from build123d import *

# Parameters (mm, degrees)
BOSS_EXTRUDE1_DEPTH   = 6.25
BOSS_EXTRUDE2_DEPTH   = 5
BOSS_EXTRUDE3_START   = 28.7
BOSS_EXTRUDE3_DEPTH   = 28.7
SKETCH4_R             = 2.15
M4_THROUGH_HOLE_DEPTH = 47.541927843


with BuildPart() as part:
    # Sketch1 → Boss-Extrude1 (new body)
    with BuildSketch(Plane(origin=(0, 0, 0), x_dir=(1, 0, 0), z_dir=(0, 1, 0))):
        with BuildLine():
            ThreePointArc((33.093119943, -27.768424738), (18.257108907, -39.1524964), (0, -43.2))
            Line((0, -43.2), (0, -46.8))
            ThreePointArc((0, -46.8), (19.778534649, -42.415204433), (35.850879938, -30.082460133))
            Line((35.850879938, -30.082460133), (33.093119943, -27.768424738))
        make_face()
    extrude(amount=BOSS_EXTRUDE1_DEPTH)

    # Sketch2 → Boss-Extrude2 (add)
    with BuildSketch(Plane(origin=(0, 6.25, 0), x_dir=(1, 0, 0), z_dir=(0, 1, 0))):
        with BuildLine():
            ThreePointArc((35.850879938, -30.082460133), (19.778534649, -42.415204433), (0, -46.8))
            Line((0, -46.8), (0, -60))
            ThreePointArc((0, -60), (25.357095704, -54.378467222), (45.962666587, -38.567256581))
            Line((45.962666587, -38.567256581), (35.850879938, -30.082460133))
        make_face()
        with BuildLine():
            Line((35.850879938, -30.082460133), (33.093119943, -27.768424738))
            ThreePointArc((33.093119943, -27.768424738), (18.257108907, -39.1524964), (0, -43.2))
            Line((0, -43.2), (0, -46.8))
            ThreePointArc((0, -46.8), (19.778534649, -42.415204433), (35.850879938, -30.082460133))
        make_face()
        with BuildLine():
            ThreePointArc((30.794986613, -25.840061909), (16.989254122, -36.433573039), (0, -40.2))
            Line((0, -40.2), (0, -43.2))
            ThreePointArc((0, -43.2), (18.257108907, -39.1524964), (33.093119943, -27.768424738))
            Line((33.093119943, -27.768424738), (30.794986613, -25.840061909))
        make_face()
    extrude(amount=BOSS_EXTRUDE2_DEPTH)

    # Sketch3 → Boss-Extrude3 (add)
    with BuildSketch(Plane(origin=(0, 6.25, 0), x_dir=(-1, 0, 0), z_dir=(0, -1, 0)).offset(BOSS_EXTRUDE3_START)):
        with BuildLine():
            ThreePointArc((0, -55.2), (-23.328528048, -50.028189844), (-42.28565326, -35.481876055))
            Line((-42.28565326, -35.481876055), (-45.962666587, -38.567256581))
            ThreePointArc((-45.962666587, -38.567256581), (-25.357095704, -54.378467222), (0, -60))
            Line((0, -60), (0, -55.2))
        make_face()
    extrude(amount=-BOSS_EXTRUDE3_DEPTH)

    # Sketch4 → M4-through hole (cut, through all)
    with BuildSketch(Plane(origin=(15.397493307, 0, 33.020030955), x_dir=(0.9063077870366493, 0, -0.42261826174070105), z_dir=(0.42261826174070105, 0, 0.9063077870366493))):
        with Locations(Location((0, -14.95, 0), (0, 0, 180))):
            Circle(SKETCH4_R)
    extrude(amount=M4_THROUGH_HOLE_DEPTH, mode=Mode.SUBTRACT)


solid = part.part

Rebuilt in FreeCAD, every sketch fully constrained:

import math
import FreeCAD as App
import Part
import Sketcher
from FreeCAD import Vector
Q = App.Units.Quantity

doc = App.newDocument("Part")
body = doc.addObject("PartDesign::Body", "Body")

sketch1 = body.newObject("Sketcher::SketchObject", "Sketch")
sketch1.AttachmentSupport = (doc.getObject("XZ_Plane"), [""])
sketch1.MapMode = "FlatFace"
sketch1.addGeometry(Part.ArcOfCircle(Part.Circle(Vector(0, 0, 0), Vector(0, 0, 1), 43.2), math.radians(40), math.radians(90)), False)
sketch1.addGeometry(Part.LineSegment(Vector(0, 43.2, 0), Vector(0, 46.8, 0)), False)
sketch1.addGeometry(Part.ArcOfCircle(Part.Circle(Vector(0, 0, 0), Vector(0, 0, 1), 46.8), math.radians(40), math.radians(90)), False)
sketch1.addGeometry(Part.LineSegment(Vector(35.9, 30.1, 0), Vector(33.1, 27.8, 0)), False)
sketch1.addConstraint(Sketcher.Constraint("Coincident", 0, 2, 1, 1))
sketch1.addConstraint(Sketcher.Constraint("Coincident", 1, 2, 2, 2))
sketch1.addConstraint(Sketcher.Constraint("Coincident", 2, 1, 3, 1))
sketch1.addConstraint(Sketcher.Constraint("Coincident", 3, 2, 0, 1))
sketch1.addConstraint(Sketcher.Constraint("Vertical", 1))
sketch1.addConstraint(Sketcher.Constraint("Coincident", 0, 3, -1, 1))
sketch1.addConstraint(Sketcher.Constraint("Coincident", 2, 3, -1, 1))
sketch1.addConstraint(Sketcher.Constraint("PointOnObject", 0, 2, -2))
sketch1.addConstraint(Sketcher.Constraint("Radius", 0, 43.2))
sketch1.addConstraint(Sketcher.Constraint("Radius", 2, 46.8))
sketch1.addConstraint(Sketcher.Constraint("Angle", 3, Q("-140 deg")))
sketch1.addConstraint(Sketcher.Constraint("DistanceX", -1, 1, 2, 1, 35.85088))
pad1 = body.newObject("PartDesign::Pad", "Pad")
pad1.Profile = sketch1
pad1.Length = 6.25
pad1.Reversed = True

sketch2 = body.newObject("Sketcher::SketchObject", "Sketch001")
sketch2.AttachmentSupport = (doc.getObject("XZ_Plane"), [""])
sketch2.MapMode = "FlatFace"
sketch2.AttachmentOffset = App.Placement(Vector(0, 0, -6.25), App.Rotation())
sketch2.addGeometry(Part.ArcOfCircle(Part.Circle(Vector(0, 0, 0), Vector(0, 0, 1), 60), math.radians(40), math.radians(90)), False)
sketch2.addGeometry(Part.LineSegment(Vector(46, 38.6, 0), Vector(35.9, 30.1, 0)), False)
sketch2.addGeometry(Part.LineSegment(Vector(35.9, 30.1, 0), Vector(33.1, 27.8, 0)), False)
sketch2.addGeometry(Part.LineSegment(Vector(33.1, 27.8, 0), Vector(30.8, 25.8, 0)), False)
sketch2.addGeometry(Part.ArcOfCircle(Part.Circle(Vector(0, 0, 0), Vector(0, 0, 1), 40.2), math.radians(40), math.radians(90)), False)
sketch2.addGeometry(Part.LineSegment(Vector(0, 40.2, 0), Vector(0, 60, 0)), False)
sketch2.addConstraint(Sketcher.Constraint("Coincident", 0, 1, 1, 1))
sketch2.addConstraint(Sketcher.Constraint("Coincident", 1, 2, 2, 1))
sketch2.addConstraint(Sketcher.Constraint("Coincident", 2, 2, 3, 1))
sketch2.addConstraint(Sketcher.Constraint("Coincident", 3, 2, 4, 1))
sketch2.addConstraint(Sketcher.Constraint("Coincident", 4, 2, 5, 1))
sketch2.addConstraint(Sketcher.Constraint("Coincident", 5, 2, 0, 2))
sketch2.addConstraint(Sketcher.Constraint("Vertical", 5))
sketch2.addConstraint(Sketcher.Constraint("Coincident", 0, 3, -1, 1))
sketch2.addConstraint(Sketcher.Constraint("Coincident", 4, 3, -1, 1))
sketch2.addConstraint(Sketcher.Constraint("PointOnObject", 4, 2, -2))
sketch2.addConstraint(Sketcher.Constraint("Parallel", 1, 2))
sketch2.addConstraint(Sketcher.Constraint("Parallel", 2, 3))
sketch2.addConstraint(Sketcher.Constraint("Radius", 0, 60.0))
sketch2.addConstraint(Sketcher.Constraint("Radius", 4, 40.2))
sketch2.addConstraint(Sketcher.Constraint("Angle", 1, Q("-140 deg")))
sketch2.addConstraint(Sketcher.Constraint("Distance", 3, 3.0))
sketch2.addConstraint(Sketcher.Constraint("Distance", 1, 13.2))
sketch2.addConstraint(Sketcher.Constraint("DistanceX", -1, 1, 1, 2, 35.85088))
pad2 = body.newObject("PartDesign::Pad", "Pad001")
pad2.Profile = sketch2
pad2.Length = 5
pad2.Reversed = True

sketch3 = body.newObject("Sketcher::SketchObject", "Sketch002")
sketch3.AttachmentSupport = (doc.getObject("XZ_Plane"), [""])
sketch3.MapMode = "FlatFace"
sketch3.AttachmentOffset = App.Placement(Vector(0, 0, 22.45), App.Rotation())
sketch3.addGeometry(Part.ArcOfCircle(Part.Circle(Vector(0, 0, 0), Vector(0, 0, 1), 55.2), math.radians(40), math.radians(90)), False)
sketch3.addGeometry(Part.LineSegment(Vector(42.3, 35.5, 0), Vector(46, 38.6, 0)), False)
sketch3.addGeometry(Part.ArcOfCircle(Part.Circle(Vector(0, 0, 0), Vector(0, 0, 1), 60), math.radians(40), math.radians(90)), False)
sketch3.addGeometry(Part.LineSegment(Vector(0, 60, 0), Vector(0, 55.2, 0)), False)
sketch3.addConstraint(Sketcher.Constraint("Coincident", 0, 1, 1, 1))
sketch3.addConstraint(Sketcher.Constraint("Coincident", 1, 2, 2, 1))
sketch3.addConstraint(Sketcher.Constraint("Coincident", 2, 2, 3, 1))
sketch3.addConstraint(Sketcher.Constraint("Coincident", 3, 2, 0, 2))
sketch3.addConstraint(Sketcher.Constraint("Vertical", 3))
sketch3.addConstraint(Sketcher.Constraint("Coincident", 0, 3, -1, 1))
sketch3.addConstraint(Sketcher.Constraint("Coincident", 2, 3, -1, 1))
sketch3.addConstraint(Sketcher.Constraint("PointOnObject", 2, 2, -2))
sketch3.addConstraint(Sketcher.Constraint("Radius", 2, 60.0))
sketch3.addConstraint(Sketcher.Constraint("Radius", 0, 55.2))
sketch3.addConstraint(Sketcher.Constraint("Angle", 1, Q("40 deg")))
sketch3.addConstraint(Sketcher.Constraint("DistanceX", -1, 1, 0, 1, 42.285653))
pad3 = body.newObject("PartDesign::Pad", "Pad002")
pad3.Profile = sketch3
pad3.Length = 28.7
pad3.Reversed = True

sketch4 = body.newObject("Sketcher::SketchObject", "Sketch003")
sketch4.Placement = App.Placement(Vector(15.397493, 0, 33.020031), App.Rotation(Vector(0.906307787, 0, -0.422618262), Vector(0, 1, 0), Vector(0.422618262, 0, 0.906307787), "ZXY"))
sketch4.addGeometry(Part.Circle(Vector(0, -15, 0), Vector(0, 0, 1), 2.1), False)
sketch4.addConstraint(Sketcher.Constraint("PointOnObject", 0, 3, -2))
sketch4.addConstraint(Sketcher.Constraint("Diameter", 0, 4.3))
sketch4.addConstraint(Sketcher.Constraint("DistanceY", 0, 3, -1, 1, 14.95))
pocket1 = body.newObject("PartDesign::Pocket", "Pocket")
pocket1.Profile = sketch4
pocket1.Type = "ThroughAll"
pocket1.Reversed = True

doc.recompute()
